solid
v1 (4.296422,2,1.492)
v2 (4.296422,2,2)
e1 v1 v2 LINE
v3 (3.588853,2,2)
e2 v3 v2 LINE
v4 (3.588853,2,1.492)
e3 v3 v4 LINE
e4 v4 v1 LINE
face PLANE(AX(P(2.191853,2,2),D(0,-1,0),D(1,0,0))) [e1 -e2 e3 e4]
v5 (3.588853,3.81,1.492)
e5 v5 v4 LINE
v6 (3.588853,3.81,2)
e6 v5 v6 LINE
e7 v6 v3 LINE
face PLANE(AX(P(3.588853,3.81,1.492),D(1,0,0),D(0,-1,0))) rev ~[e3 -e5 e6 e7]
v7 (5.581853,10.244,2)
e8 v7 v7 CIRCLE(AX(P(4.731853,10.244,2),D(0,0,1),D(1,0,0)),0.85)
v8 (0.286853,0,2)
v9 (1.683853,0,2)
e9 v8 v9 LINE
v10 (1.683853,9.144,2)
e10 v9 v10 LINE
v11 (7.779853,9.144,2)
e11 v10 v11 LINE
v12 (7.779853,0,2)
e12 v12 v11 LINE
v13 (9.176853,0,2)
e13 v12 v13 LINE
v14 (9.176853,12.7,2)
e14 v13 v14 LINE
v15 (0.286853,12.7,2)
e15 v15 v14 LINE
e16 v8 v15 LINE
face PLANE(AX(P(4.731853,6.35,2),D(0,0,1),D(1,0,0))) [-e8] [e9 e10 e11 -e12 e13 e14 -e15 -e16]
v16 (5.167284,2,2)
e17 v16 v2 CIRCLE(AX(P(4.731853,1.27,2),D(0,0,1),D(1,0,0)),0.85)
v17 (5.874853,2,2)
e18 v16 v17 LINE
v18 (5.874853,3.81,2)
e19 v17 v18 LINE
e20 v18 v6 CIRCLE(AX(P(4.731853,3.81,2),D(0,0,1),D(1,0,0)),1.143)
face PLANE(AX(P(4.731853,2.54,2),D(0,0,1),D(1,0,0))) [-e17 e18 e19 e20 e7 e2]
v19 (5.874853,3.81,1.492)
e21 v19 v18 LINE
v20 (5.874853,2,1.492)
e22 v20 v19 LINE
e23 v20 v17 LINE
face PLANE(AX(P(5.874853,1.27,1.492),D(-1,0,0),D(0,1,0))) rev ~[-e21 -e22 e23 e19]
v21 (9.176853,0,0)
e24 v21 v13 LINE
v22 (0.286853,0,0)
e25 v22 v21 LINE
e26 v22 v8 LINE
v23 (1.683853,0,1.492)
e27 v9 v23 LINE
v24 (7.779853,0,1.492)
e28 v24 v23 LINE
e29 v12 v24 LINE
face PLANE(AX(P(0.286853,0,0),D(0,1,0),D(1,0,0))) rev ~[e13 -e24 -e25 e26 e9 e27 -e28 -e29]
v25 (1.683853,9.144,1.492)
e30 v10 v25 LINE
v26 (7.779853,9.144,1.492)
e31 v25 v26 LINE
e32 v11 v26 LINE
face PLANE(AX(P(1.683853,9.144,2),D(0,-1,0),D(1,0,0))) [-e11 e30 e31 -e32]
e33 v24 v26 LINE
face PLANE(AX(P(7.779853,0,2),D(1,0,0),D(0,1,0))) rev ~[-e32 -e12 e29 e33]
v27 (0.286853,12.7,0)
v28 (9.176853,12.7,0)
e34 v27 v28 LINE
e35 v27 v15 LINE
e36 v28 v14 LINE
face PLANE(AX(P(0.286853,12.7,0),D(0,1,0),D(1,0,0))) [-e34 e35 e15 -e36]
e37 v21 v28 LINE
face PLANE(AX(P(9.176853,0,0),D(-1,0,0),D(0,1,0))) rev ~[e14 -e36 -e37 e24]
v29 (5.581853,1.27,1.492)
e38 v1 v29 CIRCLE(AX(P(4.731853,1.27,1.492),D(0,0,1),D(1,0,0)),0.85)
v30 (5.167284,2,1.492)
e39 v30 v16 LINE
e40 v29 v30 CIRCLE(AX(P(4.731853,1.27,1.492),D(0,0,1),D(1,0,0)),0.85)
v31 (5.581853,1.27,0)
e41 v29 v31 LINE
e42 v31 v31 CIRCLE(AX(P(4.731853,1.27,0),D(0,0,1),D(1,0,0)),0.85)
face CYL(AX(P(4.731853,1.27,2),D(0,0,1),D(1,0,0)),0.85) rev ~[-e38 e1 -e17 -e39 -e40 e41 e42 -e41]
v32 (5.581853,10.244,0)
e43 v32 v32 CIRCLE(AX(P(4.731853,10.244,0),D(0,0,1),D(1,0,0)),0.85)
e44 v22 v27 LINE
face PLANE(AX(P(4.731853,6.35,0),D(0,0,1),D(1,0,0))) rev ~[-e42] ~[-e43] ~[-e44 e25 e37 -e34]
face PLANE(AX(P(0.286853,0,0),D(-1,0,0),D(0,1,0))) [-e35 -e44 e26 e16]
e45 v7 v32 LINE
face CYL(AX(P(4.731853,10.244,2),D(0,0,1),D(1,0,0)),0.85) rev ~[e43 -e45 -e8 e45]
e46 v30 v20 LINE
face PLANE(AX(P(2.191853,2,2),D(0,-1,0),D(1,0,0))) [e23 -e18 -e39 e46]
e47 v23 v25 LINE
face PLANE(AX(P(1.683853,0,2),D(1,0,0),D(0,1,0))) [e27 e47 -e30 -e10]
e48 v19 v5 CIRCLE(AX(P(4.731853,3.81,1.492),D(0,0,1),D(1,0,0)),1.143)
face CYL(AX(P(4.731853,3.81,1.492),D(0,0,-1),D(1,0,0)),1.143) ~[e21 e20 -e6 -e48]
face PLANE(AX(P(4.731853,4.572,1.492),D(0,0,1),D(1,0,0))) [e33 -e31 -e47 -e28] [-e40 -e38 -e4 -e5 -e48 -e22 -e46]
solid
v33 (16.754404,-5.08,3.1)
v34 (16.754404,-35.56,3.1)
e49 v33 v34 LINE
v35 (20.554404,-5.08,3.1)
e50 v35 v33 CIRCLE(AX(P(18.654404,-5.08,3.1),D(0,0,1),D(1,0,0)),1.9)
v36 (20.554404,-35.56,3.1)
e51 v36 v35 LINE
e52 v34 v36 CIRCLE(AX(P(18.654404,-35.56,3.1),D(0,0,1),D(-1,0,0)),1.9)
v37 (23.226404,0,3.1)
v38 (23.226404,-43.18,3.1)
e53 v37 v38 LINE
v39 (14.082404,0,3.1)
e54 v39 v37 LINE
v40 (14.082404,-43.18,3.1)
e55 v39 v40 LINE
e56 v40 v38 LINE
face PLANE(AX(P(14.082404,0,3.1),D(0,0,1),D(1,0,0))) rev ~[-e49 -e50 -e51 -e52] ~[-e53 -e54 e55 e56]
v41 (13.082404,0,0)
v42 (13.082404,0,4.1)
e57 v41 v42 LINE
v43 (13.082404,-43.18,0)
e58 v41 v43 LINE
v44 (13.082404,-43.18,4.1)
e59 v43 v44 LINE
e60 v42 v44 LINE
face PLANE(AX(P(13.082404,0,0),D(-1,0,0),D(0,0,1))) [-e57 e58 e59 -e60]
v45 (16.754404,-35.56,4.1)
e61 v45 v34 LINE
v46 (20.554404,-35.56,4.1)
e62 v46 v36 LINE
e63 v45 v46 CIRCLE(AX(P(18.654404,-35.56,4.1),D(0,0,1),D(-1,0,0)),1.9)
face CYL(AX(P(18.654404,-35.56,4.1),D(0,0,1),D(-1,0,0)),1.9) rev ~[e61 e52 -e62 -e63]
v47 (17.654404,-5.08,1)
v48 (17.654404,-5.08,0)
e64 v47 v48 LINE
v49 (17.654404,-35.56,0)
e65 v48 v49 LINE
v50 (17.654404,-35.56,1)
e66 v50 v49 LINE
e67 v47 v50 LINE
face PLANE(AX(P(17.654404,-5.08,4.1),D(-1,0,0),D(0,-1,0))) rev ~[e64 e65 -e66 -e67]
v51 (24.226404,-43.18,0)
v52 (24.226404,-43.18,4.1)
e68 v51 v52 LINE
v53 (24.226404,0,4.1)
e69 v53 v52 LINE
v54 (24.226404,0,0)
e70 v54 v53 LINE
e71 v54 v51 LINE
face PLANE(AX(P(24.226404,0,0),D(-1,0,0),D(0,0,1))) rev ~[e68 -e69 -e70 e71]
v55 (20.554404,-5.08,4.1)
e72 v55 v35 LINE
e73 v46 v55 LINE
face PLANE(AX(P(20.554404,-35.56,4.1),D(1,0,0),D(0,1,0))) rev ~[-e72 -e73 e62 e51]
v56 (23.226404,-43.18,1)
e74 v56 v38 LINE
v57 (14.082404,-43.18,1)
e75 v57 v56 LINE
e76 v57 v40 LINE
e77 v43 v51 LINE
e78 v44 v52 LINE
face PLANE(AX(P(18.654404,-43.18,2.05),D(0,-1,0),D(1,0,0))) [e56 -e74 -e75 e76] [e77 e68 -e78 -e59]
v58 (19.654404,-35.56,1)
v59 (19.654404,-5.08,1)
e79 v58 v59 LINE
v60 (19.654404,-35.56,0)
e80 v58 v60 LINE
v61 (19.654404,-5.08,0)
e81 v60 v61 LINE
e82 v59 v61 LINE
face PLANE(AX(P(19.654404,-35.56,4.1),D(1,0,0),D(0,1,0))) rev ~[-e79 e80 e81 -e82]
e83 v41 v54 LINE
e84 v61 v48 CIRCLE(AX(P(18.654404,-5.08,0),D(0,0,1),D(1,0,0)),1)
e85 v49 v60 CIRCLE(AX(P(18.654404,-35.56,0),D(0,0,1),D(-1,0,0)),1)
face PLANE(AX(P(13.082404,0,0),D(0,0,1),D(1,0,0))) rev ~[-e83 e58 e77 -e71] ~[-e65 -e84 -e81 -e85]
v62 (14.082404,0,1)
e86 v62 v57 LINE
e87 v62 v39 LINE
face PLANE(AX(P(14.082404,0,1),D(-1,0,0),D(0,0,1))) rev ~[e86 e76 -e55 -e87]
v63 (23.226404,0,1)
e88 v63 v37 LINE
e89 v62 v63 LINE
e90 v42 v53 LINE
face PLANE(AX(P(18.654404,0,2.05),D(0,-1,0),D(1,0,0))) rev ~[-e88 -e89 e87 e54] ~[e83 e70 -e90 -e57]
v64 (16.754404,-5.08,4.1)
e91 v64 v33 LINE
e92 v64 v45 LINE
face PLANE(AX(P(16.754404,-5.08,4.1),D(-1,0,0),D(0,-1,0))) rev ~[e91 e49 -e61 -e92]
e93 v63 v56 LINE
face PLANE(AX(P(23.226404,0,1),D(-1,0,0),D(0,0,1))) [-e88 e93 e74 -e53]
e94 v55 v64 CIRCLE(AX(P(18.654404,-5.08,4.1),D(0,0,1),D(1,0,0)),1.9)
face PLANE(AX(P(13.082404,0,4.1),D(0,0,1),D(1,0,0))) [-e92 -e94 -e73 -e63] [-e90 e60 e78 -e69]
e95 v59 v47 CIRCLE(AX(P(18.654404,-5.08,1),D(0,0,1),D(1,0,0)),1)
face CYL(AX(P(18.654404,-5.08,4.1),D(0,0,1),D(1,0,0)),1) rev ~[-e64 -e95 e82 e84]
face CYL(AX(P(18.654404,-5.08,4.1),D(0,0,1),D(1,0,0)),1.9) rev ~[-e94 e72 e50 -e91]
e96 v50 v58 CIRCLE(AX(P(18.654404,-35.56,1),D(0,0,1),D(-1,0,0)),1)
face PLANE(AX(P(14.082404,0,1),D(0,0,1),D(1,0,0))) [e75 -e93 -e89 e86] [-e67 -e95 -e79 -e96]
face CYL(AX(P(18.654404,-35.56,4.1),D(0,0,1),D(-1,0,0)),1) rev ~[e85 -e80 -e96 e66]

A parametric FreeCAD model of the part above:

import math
import FreeCAD as App
import Part
import Sketcher
Q = App.Units.Quantity

doc = App.newDocument("Part")
body = doc.addObject("PartDesign::Body", "Body")

# Sketch on XY plane
sketch1 = body.newObject("Sketcher::SketchObject", "Sketch")
sketch1.AttachmentSupport = (doc.getObject("XY_Plane"), [""])
sketch1.MapMode = "FlatFace"
sketch1.addGeometry(Part.LineSegment(App.Vector(0.286853, 12.7, 0), App.Vector(0.286853, 0, 0)), False)
sketch1.addGeometry(Part.LineSegment(App.Vector(0.286853, 0, 0), App.Vector(9.176853, 0, 0)), False)
sketch1.addGeometry(Part.LineSegment(App.Vector(9.176853, 0, 0), App.Vector(9.176853, 12.7, 0)), False)
sketch1.addGeometry(Part.LineSegment(App.Vector(9.176853, 12.7, 0), App.Vector(0.286853, 12.7, 0)), False)
sketch1.addConstraint(Sketcher.Constraint("Coincident", 0, 2, 1, 1))
sketch1.addConstraint(Sketcher.Constraint("Coincident", 1, 2, 2, 1))
sketch1.addConstraint(Sketcher.Constraint("Coincident", 2, 2, 3, 1))
sketch1.addConstraint(Sketcher.Constraint("Coincident", 3, 2, 0, 1))
sketch1.addConstraint(Sketcher.Constraint("Vertical", 0))
sketch1.addConstraint(Sketcher.Constraint("Horizontal", 1))
sketch1.addConstraint(Sketcher.Constraint("Vertical", 2))
sketch1.addConstraint(Sketcher.Constraint("Horizontal", 3))
sketch1.addConstraint(Sketcher.Constraint("PointOnObject", 0, 2, -1))
sketch1.addConstraint(Sketcher.Constraint("DistanceY", 0, 2, 0, 1, Q("0.5 in")))
sketch1.addConstraint(Sketcher.Constraint("DistanceX", 1, 1, 1, 2, Q("0.35 in")))
sketch1.addConstraint(Sketcher.Constraint("DistanceX", -1, 1, 0, 2, 0.286853))
pad1 = body.newObject("PartDesign::Pad", "Pad")
pad1.Profile = sketch1
pad1.Length = 2

# Sketch on XY plane
sketch2 = body.newObject("Sketcher::SketchObject", "Sketch001")
sketch2.AttachmentSupport = (doc.getObject("XY_Plane"), [""])
sketch2.MapMode = "FlatFace"
sketch2.AttachmentOffset = App.Placement(App.Vector(0, 0, 2), App.Rotation())
sketch2.addGeometry(Part.LineSegment(App.Vector(1.683853, 9.144, 0), App.Vector(1.683853, 0, 0)), False)
sketch2.addGeometry(Part.LineSegment(App.Vector(1.683853, 0, 0), App.Vector(7.779853, 0, 0)), False)
sketch2.addGeometry(Part.LineSegment(App.Vector(7.779853, 0, 0), App.Vector(7.779853, 9.144, 0)), False)
sketch2.addGeometry(Part.LineSegment(App.Vector(7.779853, 9.144, 0), App.Vector(1.683853, 9.144, 0)), False)
sketch2.addConstraint(Sketcher.Constraint("Coincident", 0, 2, 1, 1))
sketch2.addConstraint(Sketcher.Constraint("Coincident", 1, 2, 2, 1))
sketch2.addConstraint(Sketcher.Constraint("Coincident", 2, 2, 3, 1))
sketch2.addConstraint(Sketcher.Constraint("Coincident", 3, 2, 0, 1))
sketch2.addConstraint(Sketcher.Constraint("Vertical", 0))
sketch2.addConstraint(Sketcher.Constraint("Horizontal", 1))
sketch2.addConstraint(Sketcher.Constraint("Vertical", 2))
sketch2.addConstraint(Sketcher.Constraint("Horizontal", 3))
sketch2.addConstraint(Sketcher.Constraint("PointOnObject", 0, 2, -1))
sketch2.addConstraint(Sketcher.Constraint("DistanceX", 1, 1, 1, 2, Q("0.24 in")))
sketch2.addConstraint(Sketcher.Constraint("DistanceY", 0, 2, 0, 1, Q("0.36 in")))
sketch2.addConstraint(Sketcher.Constraint("DistanceX", -1, 1, 0, 2, 1.683853))
pocket1 = body.newObject("PartDesign::Pocket", "Pocket")
pocket1.Profile = sketch2
pocket1.Length = Q("0.02 in")

# Sketch on XY plane
sketch3 = body.newObject("Sketcher::SketchObject", "Sketch002")
sketch3.AttachmentSupport = (doc.getObject("XY_Plane"), [""])
sketch3.MapMode = "FlatFace"
sketch3.AttachmentOffset = App.Placement(App.Vector(0, 0, 1.492), App.Rotation())
sketch3.addGeometry(Part.ArcOfCircle(Part.Circle(App.Vector(4.731853, 3.81, 0), App.Vector(0, 0, 1), 1.143), math.radians(0), math.radians(180)), False)
sketch3.addGeometry(Part.LineSegment(App.Vector(3.588853, 3.81, 0), App.Vector(3.588853, 1.27, 0)), False)
sketch3.addGeometry(Part.ArcOfCircle(Part.Circle(App.Vector(4.731853, 1.27, 0), App.Vector(0, 0, 1), 1.143), math.radians(180), math.radians(360)), False)
sketch3.addGeometry(Part.LineSegment(App.Vector(5.874853, 1.27, 0), App.Vector(5.874853, 3.81, 0)), False)
sketch3.addConstraint(Sketcher.Constraint("Tangent", 0, 2, 1, 1))
sketch3.addConstraint(Sketcher.Constraint("Tangent", 1, 2, 2, 1))
sketch3.addConstraint(Sketcher.Constraint("Tangent", 2, 2, 3, 1))
sketch3.addConstraint(Sketcher.Constraint("Tangent", 3, 2, 0, 1))
sketch3.addConstraint(Sketcher.Constraint("Vertical", 1))
sketch3.addConstraint(Sketcher.Constraint("Vertical", 3))
sketch3.addConstraint(Sketcher.Constraint("DistanceY", 1, 2, 1, 1, Q("0.1 in")))
sketch3.addConstraint(Sketcher.Constraint("Radius", 0, Q("0.045 in")))
sketch3.addConstraint(Sketcher.Constraint("DistanceY", -1, 1, 0, 3, Q("0.15 in")))
sketch3.addConstraint(Sketcher.Constraint("DistanceX", -1, 1, 0, 3, 4.731853))
pad2 = body.newObject("PartDesign::Pad", "Pad001")
pad2.Profile = sketch3
pad2.Length = Q("0.02 in")

# Sketch on XY plane
sketch4 = body.newObject("Sketcher::SketchObject", "Sketch003")
sketch4.AttachmentSupport = (doc.getObject("XY_Plane"), [""])
sketch4.MapMode = "FlatFace"
sketch4.AttachmentOffset = App.Placement(App.Vector(0, 0, 2), App.Rotation())
sketch4.addGeometry(Part.Circle(App.Vector(4.731853, 1.27, 0), App.Vector(0, 0, 1), 0.85), False)
sketch4.addGeometry(Part.Circle(App.Vector(4.731853, 10.244, 0), App.Vector(0, 0, 1), 0.85), False)
sketch4.addConstraint(Sketcher.Constraint("Equal", 0, 1))
sketch4.addConstraint(Sketcher.Constraint("Vertical", 0, 3, 1, 3))
sketch4.addConstraint(Sketcher.Constraint("Diameter", 0, 1.7))
sketch4.addConstraint(Sketcher.Constraint("DistanceY", -1, 1, 0, 3, Q("0.05 in")))
sketch4.addConstraint(Sketcher.Constraint("DistanceY", -1, 1, 1, 3, 10.244))
sketch4.addConstraint(Sketcher.Constraint("DistanceX", -1, 1, 0, 3, 4.731853))
pocket2 = body.newObject("PartDesign::Pocket", "Pocket001")
pocket2.Profile = sketch4
pocket2.Length = Q("1 in")

# Sketch on XY plane
sketch5 = body.newObject("Sketcher::SketchObject", "Sketch004")
sketch5.AttachmentSupport = (doc.getObject("XY_Plane"), [""])
sketch5.MapMode = "FlatFace"
sketch5.AttachmentOffset = App.Placement(App.Vector(0, 0, 2), App.Rotation())
sketch5.addGeometry(Part.LineSegment(App.Vector(2.191853, 2, 0), App.Vector(2.191853, 0, 0)), False)
sketch5.addGeometry(Part.LineSegment(App.Vector(2.191853, 0, 0), App.Vector(7.271853, 0, 0)), False)
sketch5.addGeometry(Part.LineSegment(App.Vector(7.271853, 0, 0), App.Vector(7.271853, 2, 0)), False)
sketch5.addGeometry(Part.LineSegment(App.Vector(7.271853, 2, 0), App.Vector(2.191853, 2, 0)), False)
sketch5.addConstraint(Sketcher.Constraint("Coincident", 0, 2, 1, 1))
sketch5.addConstraint(Sketcher.Constraint("Coincident", 1, 2, 2, 1))
sketch5.addConstraint(Sketcher.Constraint("Coincident", 2, 2, 3, 1))
sketch5.addConstraint(Sketcher.Constraint("Coincident", 3, 2, 0, 1))
sketch5.addConstraint(Sketcher.Constraint("Vertical", 0))
sketch5.addConstraint(Sketcher.Constraint("Horizontal", 1))
sketch5.addConstraint(Sketcher.Constraint("Vertical", 2))
sketch5.addConstraint(Sketcher.Constraint("Horizontal", 3))
sketch5.addConstraint(Sketcher.Constraint("PointOnObject", 0, 2, -1))
sketch5.addConstraint(Sketcher.Constraint("DistanceX", 1, 1, 1, 2, Q("0.2 in")))
sketch5.addConstraint(Sketcher.Constraint("DistanceY", 0, 2, 0, 1, 2.0))
sketch5.addConstraint(Sketcher.Constraint("DistanceX", -1, 1, 0, 2, 2.191853))
pocket3 = body.newObject("PartDesign::Pocket", "Pocket002")
pocket3.Profile = sketch5
pocket3.Length = Q("0.02 in")
body2 = doc.addObject("PartDesign::Body", "Body001")

# Sketch on XZ plane
sketch6 = body2.newObject("Sketcher::SketchObject", "Sketch005")
sketch6.AttachmentSupport = (doc.getObject("XZ_Plane001"), [""])
sketch6.MapMode = "FlatFace"
sketch6.addGeometry(Part.LineSegment(App.Vector(13.082404, 4.1, 0), App.Vector(13.082404, 0, 0)), False)
sketch6.addGeometry(Part.LineSegment(App.Vector(13.082404, 0, 0), App.Vector(24.226404, 0, 0)), False)
sketch6.addGeometry(Part.LineSegment(App.Vector(24.226404, 0, 0), App.Vector(24.226404, 4.1, 0)), False)
sketch6.addGeometry(Part.LineSegment(App.Vector(24.226404, 4.1, 0), App.Vector(13.082404, 4.1, 0)), False)
sketch6.addGeometry(Part.LineSegment(App.Vector(23.226404, 1, 0), App.Vector(14.082404, 1, 0)), False)
sketch6.addGeometry(Part.LineSegment(App.Vector(14.082404, 1, 0), App.Vector(14.082404, 3.1, 0)), False)
sketch6.addGeometry(Part.LineSegment(App.Vector(14.082404, 3.1, 0), App.Vector(23.226404, 3.1, 0)), False)
sketch6.addGeometry(Part.LineSegment(App.Vector(23.226404, 3.1, 0), App.Vector(23.226404, 1, 0)), False)
sketch6.addConstraint(Sketcher.Constraint("Coincident", 0, 2, 1, 1))
sketch6.addConstraint(Sketcher.Constraint("Coincident", 1, 2, 2, 1))
sketch6.addConstraint(Sketcher.Constraint("Coincident", 2, 2, 3, 1))
sketch6.addConstraint(Sketcher.Constraint("Coincident", 3, 2, 0, 1))
sketch6.addConstraint(Sketcher.Constraint("Coincident", 4, 2, 5, 1))
sketch6.addConstraint(Sketcher.Constraint("Coincident", 5, 2, 6, 1))
sketch6.addConstraint(Sketcher.Constraint("Coincident", 6, 2, 7, 1))
sketch6.addConstraint(Sketcher.Constraint("Coincident", 7, 2, 4, 1))
sketch6.addConstraint(Sketcher.Constraint("Vertical", 0))
sketch6.addConstraint(Sketcher.Constraint("Horizontal", 1))
sketch6.addConstraint(Sketcher.Constraint("Vertical", 2))
sketch6.addConstraint(Sketcher.Constraint("Horizontal", 3))
sketch6.addConstraint(Sketcher.Constraint("Horizontal", 4))
sketch6.addConstraint(Sketcher.Constraint("Vertical", 5))
sketch6.addConstraint(Sketcher.Constraint("Horizontal", 6))
sketch6.addConstraint(Sketcher.Constraint("Vertical", 7))
sketch6.addConstraint(Sketcher.Constraint("PointOnObject", 0, 2, -1))
sketch6.addConstraint(Sketcher.Constraint("DistanceX", 4, 2, 4, 1, Q("0.36 in")))
sketch6.addConstraint(Sketcher.Constraint("DistanceX", 1, 1, 1, 2, 11.144))
sketch6.addConstraint(Sketcher.Constraint("DistanceY", 0, 2, 0, 1, 4.1))
sketch6.addConstraint(Sketcher.Constraint("DistanceY", 5, 1, 5, 2, 2.1))
sketch6.addConstraint(Sketcher.Constraint("DistanceY", -1, 1, 4, 2, 1.0))
sketch6.addConstraint(Sketcher.Constraint("DistanceX", 0, 2, 4, 2, 1.0))
sketch6.addConstraint(Sketcher.Constraint("DistanceX", -1, 1, 0, 2, 13.082404))
pad3 = body2.newObject("PartDesign::Pad", "Pad002")
pad3.Profile = sketch6
pad3.Length = Q("1.7 in")

# Sketch on XY plane
sketch7 = body2.newObject("Sketcher::SketchObject", "Sketch006")
sketch7.AttachmentSupport = (doc.getObject("XY_Plane001"), [""])
sketch7.MapMode = "FlatFace"
sketch7.AttachmentOffset = App.Placement(App.Vector(0, 0, 4.1), App.Rotation())
sketch7.addGeometry(Part.ArcOfCircle(Part.Circle(App.Vector(18.654404, -5.08, 0), App.Vector(0, 0, 1), 1.9), math.radians(0), math.radians(180)), False)
sketch7.addGeometry(Part.LineSegment(App.Vector(16.754404, -5.08, 0), App.Vector(16.754404, -35.56, 0)), False)
sketch7.addGeometry(Part.ArcOfCircle(Part.Circle(App.Vector(18.654404, -35.56, 0), App.Vector(0, 0, 1), 1.9), math.radians(180), math.radians(360)), False)
sketch7.addGeometry(Part.LineSegment(App.Vector(20.554404, -35.56, 0), App.Vector(20.554404, -5.08, 0)), False)
sketch7.addConstraint(Sketcher.Constraint("Tangent", 0, 2, 1, 1))
sketch7.addConstraint(Sketcher.Constraint("Tangent", 1, 2, 2, 1))
sketch7.addConstraint(Sketcher.Constraint("Tangent", 2, 2, 3, 1))
sketch7.addConstraint(Sketcher.Constraint("Tangent", 3, 2, 0, 1))
sketch7.addConstraint(Sketcher.Constraint("Vertical", 1))
sketch7.addConstraint(Sketcher.Constraint("Vertical", 3))
sketch7.addConstraint(Sketcher.Constraint("DistanceY", 1, 2, 1, 1, Q("1.2 in")))
sketch7.addConstraint(Sketcher.Constraint("DistanceY", 0, 3, -1, 1, Q("0.2 in")))
sketch7.addConstraint(Sketcher.Constraint("Radius", 0, 1.9))
sketch7.addConstraint(Sketcher.Constraint("DistanceX", -1, 1, 0, 3, 18.654404))
pocket4 = body2.newObject("PartDesign::Pocket", "Pocket003")
pocket4.Profile = sketch7
pocket4.Length = Q("0.1 in")

# Sketch on XY plane
sketch8 = body2.newObject("Sketcher::SketchObject", "Sketch007")
sketch8.AttachmentSupport = (doc.getObject("XY_Plane001"), [""])
sketch8.MapMode = "FlatFace"
sketch8.AttachmentOffset = App.Placement(App.Vector(0, 0, 4.1), App.Rotation())
sketch8.addGeometry(Part.ArcOfCircle(Part.Circle(App.Vector(18.654404, -5.08, 0), App.Vector(0, 0, 1), 1), math.radians(0), math.radians(180)), False)
sketch8.addGeometry(Part.LineSegment(App.Vector(17.654404, -5.08, 0), App.Vector(17.654404, -35.56, 0)), False)
sketch8.addGeometry(Part.ArcOfCircle(Part.Circle(App.Vector(18.654404, -35.56, 0), App.Vector(0, 0, 1), 1), math.radians(180), math.radians(360)), False)
sketch8.addGeometry(Part.LineSegment(App.Vector(19.654404, -35.56, 0), App.Vector(19.654404, -5.08, 0)), False)
sketch8.addConstraint(Sketcher.Constraint("Tangent", 0, 2, 1, 1))
sketch8.addConstraint(Sketcher.Constraint("Tangent", 1, 2, 2, 1))
sketch8.addConstraint(Sketcher.Constraint("Tangent", 2, 2, 3, 1))
sketch8.addConstraint(Sketcher.Constraint("Tangent", 3, 2, 0, 1))
sketch8.addConstraint(Sketcher.Constraint("Vertical", 1))
sketch8.addConstraint(Sketcher.Constraint("Vertical", 3))
sketch8.addConstraint(Sketcher.Constraint("DistanceY", 1, 2, 1, 1, Q("1.2 in")))
sketch8.addConstraint(Sketcher.Constraint("DistanceY", 0, 3, -1, 1, Q("0.2 in")))
sketch8.addConstraint(Sketcher.Constraint("Radius", 0, 1.0))
sketch8.addConstraint(Sketcher.Constraint("DistanceX", -1, 1, 0, 3, 18.654404))
pocket5 = body2.newObject("PartDesign::Pocket", "Pocket004")
pocket5.Profile = sketch8
pocket5.Length = Q("1 in")

doc.recompute()
